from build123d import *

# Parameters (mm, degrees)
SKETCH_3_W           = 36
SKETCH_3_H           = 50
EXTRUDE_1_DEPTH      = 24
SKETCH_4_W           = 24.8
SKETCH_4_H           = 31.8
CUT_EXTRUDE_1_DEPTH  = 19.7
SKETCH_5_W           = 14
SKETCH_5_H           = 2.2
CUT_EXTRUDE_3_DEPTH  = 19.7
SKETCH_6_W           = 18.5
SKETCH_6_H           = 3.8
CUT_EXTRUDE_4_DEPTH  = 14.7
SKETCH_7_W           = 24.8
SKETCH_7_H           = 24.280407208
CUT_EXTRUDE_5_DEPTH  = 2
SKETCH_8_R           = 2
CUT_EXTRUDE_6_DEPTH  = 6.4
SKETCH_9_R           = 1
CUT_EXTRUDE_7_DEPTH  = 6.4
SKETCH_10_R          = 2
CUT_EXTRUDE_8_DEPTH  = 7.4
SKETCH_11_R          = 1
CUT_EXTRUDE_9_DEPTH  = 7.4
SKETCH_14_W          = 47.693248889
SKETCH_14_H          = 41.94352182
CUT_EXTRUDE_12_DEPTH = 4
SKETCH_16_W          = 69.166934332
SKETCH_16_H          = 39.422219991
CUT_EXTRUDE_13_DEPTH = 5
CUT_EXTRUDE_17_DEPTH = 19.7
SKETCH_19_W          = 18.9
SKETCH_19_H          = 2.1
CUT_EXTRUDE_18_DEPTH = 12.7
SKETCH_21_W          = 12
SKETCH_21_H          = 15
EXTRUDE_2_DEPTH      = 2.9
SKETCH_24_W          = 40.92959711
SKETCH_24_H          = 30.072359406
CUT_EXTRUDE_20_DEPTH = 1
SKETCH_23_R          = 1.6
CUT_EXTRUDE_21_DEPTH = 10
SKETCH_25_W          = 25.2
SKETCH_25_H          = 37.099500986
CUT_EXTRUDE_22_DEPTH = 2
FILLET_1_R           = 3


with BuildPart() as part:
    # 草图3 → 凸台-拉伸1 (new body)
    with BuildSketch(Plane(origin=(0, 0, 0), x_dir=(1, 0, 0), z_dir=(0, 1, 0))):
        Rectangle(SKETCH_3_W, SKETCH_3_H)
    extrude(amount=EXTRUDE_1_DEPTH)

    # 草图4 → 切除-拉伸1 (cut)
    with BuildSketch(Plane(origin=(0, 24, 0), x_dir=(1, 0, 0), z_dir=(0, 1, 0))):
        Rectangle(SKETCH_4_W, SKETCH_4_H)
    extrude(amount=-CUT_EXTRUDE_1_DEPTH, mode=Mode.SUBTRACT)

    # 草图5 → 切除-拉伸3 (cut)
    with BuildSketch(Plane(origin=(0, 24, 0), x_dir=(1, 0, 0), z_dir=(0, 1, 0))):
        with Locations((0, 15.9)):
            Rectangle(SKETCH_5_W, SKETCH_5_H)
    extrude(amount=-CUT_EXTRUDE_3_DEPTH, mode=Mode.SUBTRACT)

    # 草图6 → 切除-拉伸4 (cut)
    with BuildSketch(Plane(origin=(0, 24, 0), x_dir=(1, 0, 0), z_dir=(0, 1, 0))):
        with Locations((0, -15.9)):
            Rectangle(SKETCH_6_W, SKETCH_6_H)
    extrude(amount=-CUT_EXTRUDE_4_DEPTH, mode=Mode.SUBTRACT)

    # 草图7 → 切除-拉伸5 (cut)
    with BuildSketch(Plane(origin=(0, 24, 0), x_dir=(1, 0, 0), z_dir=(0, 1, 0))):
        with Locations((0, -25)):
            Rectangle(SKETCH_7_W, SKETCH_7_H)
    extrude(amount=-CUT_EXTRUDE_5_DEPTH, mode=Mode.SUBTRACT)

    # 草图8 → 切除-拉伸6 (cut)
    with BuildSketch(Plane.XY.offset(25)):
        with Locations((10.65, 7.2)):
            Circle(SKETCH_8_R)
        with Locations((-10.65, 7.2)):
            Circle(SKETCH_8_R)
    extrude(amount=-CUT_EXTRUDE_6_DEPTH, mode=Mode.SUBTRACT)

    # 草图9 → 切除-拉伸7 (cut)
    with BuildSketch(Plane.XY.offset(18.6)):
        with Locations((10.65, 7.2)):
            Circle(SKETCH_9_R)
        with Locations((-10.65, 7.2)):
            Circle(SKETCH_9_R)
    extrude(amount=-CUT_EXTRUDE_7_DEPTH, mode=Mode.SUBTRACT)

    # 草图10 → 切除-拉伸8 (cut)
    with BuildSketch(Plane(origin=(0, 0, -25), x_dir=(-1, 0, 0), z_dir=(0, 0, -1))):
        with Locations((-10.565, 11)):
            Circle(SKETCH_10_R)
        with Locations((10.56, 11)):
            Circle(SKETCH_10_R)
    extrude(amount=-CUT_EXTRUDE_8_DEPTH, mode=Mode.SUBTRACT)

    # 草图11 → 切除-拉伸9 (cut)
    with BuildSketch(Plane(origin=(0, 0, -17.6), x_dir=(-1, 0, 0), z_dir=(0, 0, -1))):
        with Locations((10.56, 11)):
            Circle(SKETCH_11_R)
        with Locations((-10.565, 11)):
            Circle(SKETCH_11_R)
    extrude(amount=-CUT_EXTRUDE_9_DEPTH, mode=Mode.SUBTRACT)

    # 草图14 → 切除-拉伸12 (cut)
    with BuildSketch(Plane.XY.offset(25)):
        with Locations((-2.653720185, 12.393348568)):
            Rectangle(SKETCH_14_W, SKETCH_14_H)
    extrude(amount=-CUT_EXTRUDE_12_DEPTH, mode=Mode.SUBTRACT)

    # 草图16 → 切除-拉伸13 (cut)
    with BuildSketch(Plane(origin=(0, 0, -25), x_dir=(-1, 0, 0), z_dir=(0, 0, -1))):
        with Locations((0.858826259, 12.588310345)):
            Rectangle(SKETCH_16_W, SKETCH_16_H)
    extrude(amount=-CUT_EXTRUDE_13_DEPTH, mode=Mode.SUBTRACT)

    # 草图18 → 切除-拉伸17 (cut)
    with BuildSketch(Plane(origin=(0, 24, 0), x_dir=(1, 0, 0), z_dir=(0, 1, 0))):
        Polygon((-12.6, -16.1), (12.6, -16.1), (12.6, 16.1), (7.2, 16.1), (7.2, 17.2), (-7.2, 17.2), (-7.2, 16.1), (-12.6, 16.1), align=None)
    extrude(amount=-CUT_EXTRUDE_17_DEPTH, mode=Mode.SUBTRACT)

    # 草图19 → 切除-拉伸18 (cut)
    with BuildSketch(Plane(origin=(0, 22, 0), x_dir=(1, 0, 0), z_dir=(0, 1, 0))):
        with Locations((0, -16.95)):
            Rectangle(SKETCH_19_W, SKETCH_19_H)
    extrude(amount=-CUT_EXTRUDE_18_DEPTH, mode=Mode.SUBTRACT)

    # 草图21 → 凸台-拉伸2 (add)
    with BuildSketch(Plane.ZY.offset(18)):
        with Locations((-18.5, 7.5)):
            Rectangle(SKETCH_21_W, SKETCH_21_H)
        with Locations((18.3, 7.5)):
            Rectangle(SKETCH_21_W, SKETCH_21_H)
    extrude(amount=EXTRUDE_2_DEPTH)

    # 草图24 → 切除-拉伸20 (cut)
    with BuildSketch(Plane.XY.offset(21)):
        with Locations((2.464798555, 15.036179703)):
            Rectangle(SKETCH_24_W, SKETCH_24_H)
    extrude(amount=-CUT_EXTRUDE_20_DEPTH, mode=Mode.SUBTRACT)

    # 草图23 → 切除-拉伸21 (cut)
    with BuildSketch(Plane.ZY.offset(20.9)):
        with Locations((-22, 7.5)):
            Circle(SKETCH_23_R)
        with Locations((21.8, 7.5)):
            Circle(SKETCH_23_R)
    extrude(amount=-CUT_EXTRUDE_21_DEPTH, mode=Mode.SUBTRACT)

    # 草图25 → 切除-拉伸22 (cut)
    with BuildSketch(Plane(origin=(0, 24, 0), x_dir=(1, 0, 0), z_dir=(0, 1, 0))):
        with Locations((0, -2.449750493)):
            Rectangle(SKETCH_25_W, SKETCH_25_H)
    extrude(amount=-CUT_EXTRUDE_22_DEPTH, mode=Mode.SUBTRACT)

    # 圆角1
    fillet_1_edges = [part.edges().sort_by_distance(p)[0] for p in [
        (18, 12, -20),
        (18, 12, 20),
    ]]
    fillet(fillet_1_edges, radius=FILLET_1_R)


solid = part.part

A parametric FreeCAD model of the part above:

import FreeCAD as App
import Part
import Sketcher
from FreeCAD import Vector
Q = App.Units.Quantity


def edges_at(feature, points):
    """Names of the edges that pass closest to the given points."""
    edges = feature.Shape.Edges
    near = lambda p: min(range(len(edges)), key=lambda i: edges[i].distToShape(Part.Vertex(*p))[0])
    return sorted({f"Edge{near(p) + 1}" for p in points})


def add_polygon(sketch, points):
    """Adds a closed chain of lines whose ends are joined by coincident constraints."""
    first, n = sketch.GeometryCount, len(points)
    for a, b in zip(points, points[1:] + points[:1]):
        sketch.addGeometry(Part.LineSegment(App.Vector(*a, 0), App.Vector(*b, 0)), False)
    for i in range(n):
        sketch.addConstraint(Sketcher.Constraint("Coincident", first + i, 2, first + (i + 1) % n, 1))

doc = App.newDocument("Part")
body = doc.addObject("PartDesign::Body", "Body")

sketch1 = doc.addObject("Sketcher::SketchObject", "Sketch")
body.addObject(sketch1)
sketch1.AttachmentSupport = (doc.XZ_Plane, [""])
sketch1.MapMode = "FlatFace"
add_polygon(sketch1, [(-18, -25), (-18, 25), (18, 25), (18, -25)])
sketch1.addConstraint([
    Sketcher.Constraint("Vertical", 0),
    Sketcher.Constraint("Horizontal", 1),
    Sketcher.Constraint("Vertical", 2),
    Sketcher.Constraint("Horizontal", 3),
    Sketcher.Constraint("Symmetric", 0, 2, 2, 2, -1, 1),
    Sketcher.Constraint("DistanceX", 1, 1, 1, 2, Q("36 mm")),
    Sketcher.Constraint("DistanceY", 0, 1, 0, 2, Q("50 mm")),
])
pad1 = doc.addObject("PartDesign::Pad", "Pad")
body.addObject(pad1)
pad1.Profile = sketch1
pad1.Length = 24
pad1.Reversed = True

sketch2 = doc.addObject("Sketcher::SketchObject", "Sketch001")
body.addObject(sketch2)
sketch2.AttachmentSupport = (doc.XZ_Plane, [""])
sketch2.MapMode = "FlatFace"
sketch2.AttachmentOffset = App.Placement(Vector(0, 0, -24), App.Rotation())
add_polygon(sketch2, [(-12.4, -15.9), (-12.4, 15.9), (12.4, 15.9), (12.4, -15.9)])
sketch2.addConstraint([
    Sketcher.Constraint("Vertical", 0),
    Sketcher.Constraint("Horizontal", 1),
    Sketcher.Constraint("Vertical", 2),
    Sketcher.Constraint("Horizontal", 3),
    Sketcher.Constraint("Symmetric", 0, 2, 2, 2, -1, 1),
    Sketcher.Constraint("DistanceX", 1, 1, 1, 2, Q("24.8 mm")),
    Sketcher.Constraint("DistanceY", 0, 1, 0, 2, Q("31.8 mm")),
])
pocket1 = doc.addObject("PartDesign::Pocket", "Pocket")
body.addObject(pocket1)
pocket1.Profile = sketch2
pocket1.Length = 19.7
pocket1.Reversed = True

sketch3 = doc.addObject("Sketcher::SketchObject", "Sketch002")
body.addObject(sketch3)
sketch3.AttachmentSupport = (doc.XZ_Plane, [""])
sketch3.MapMode = "FlatFace"
sketch3.AttachmentOffset = App.Placement(Vector(0, 0, -24), App.Rotation())
add_polygon(sketch3, [(-7, -17), (-7, -14.8), (7, -14.8), (7, -17)])
sketch3.addConstraint([
    Sketcher.Constraint("Vertical", 0),
    Sketcher.Constraint("Horizontal", 1),
    Sketcher.Constraint("Vertical", 2),
    Sketcher.Constraint("Horizontal", 3),
    Sketcher.Constraint("DistanceX", 1, 1, 1, 2, Q("14 mm")),
    Sketcher.Constraint("DistanceY", 0, 1, 0, 2, Q("2.2 mm")),
    Sketcher.Constraint("DistanceX", 0, 2, -1, 1, Q("7 mm")),
    Sketcher.Constraint("DistanceY", 2, 2, -1, 1, Q("17 mm")),
])
pocket2 = doc.addObject("PartDesign::Pocket", "Pocket001")
body.addObject(pocket2)
pocket2.Profile = sketch3
pocket2.Length = 19.7
pocket2.Reversed = True

sketch4 = doc.addObject("Sketcher::SketchObject", "Sketch003")
body.addObject(sketch4)
sketch4.AttachmentSupport = (doc.XZ_Plane, [""])
sketch4.MapMode = "FlatFace"
sketch4.AttachmentOffset = App.Placement(Vector(0, 0, -24), App.Rotation())
add_polygon(sketch4, [(-9.25, 14), (-9.25, 17.8), (9.25, 17.8), (9.25, 14)])
sketch4.addConstraint([
    Sketcher.Constraint("Vertical", 0),
    Sketcher.Constraint("Horizontal", 1),
    Sketcher.Constraint("Vertical", 2),
    Sketcher.Constraint("Horizontal", 3),
    Sketcher.Constraint("DistanceX", 1, 1, 1, 2, Q("18.5 mm")),
    Sketcher.Constraint("DistanceY", 0, 1, 0, 2, Q("3.8 mm")),
    Sketcher.Constraint("DistanceY", -1, 1, 2, 2, Q("14 mm")),
    Sketcher.Constraint("DistanceX", 0, 2, -1, 1, Q("9.25 mm")),
])
pocket3 = doc.addObject("PartDesign::Pocket", "Pocket002")
body.addObject(pocket3)
pocket3.Profile = sketch4
pocket3.Length = 14.7
pocket3.Reversed = True

sketch5 = doc.addObject("Sketcher::SketchObject", "Sketch004")
body.addObject(sketch5)
sketch5.AttachmentSupport = (doc.XZ_Plane, [""])
sketch5.MapMode = "FlatFace"
sketch5.AttachmentOffset = App.Placement(Vector(0, 0, -24), App.Rotation())
add_polygon(sketch5, [(-12.4, 12.859796), (-12.4, 37.140204), (12.4, 37.140204), (12.4, 12.859796)])
sketch5.addConstraint([
    Sketcher.Constraint("Vertical", 0),
    Sketcher.Constraint("Horizontal", 1),
    Sketcher.Constraint("Vertical", 2),
    Sketcher.Constraint("Horizontal", 3),
    Sketcher.Constraint("DistanceX", 1, 1, 1, 2, Q("24.8 mm")),
    Sketcher.Constraint("DistanceX", 0, 2, -1, 1, Q("12.4 mm")),
    Sketcher.Constraint("DistanceY", 0, 1, 0, 2, Q("24.280407 mm")),
    Sketcher.Constraint("DistanceY", -1, 1, 0, 2, Q("37.140204 mm")),
])
pocket4 = doc.addObject("PartDesign::Pocket", "Pocket003")
body.addObject(pocket4)
pocket4.Profile = sketch5
pocket4.Length = 2
pocket4.Reversed = True

sketch6 = doc.addObject("Sketcher::SketchObject", "Sketch005")
body.addObject(sketch6)
sketch6.AttachmentSupport = (doc.XY_Plane, [""])
sketch6.MapMode = "FlatFace"
sketch6.AttachmentOffset = App.Placement(Vector(0, 0, 25), App.Rotation())
sketch6.addGeometry([
    Part.Circle(Vector(10.65, 7.2, 0), Vector(0, 0, 1), 2),
    Part.Circle(Vector(-10.65, 7.2, 0), Vector(0, 0, 1), 2),
], False)
sketch6.addConstraint([
    Sketcher.Constraint("Equal", 0, 1),
    Sketcher.Constraint("Symmetric", 0, 3, 1, 3, -2),
    Sketcher.Constraint("Diameter", 0, Q("4 mm")),
    Sketcher.Constraint("DistanceY", -1, 1, 0, 3, Q("7.2 mm")),
    Sketcher.Constraint("DistanceX", 1, 3, 0, 3, Q("21.3 mm")),
])
pocket5 = doc.addObject("PartDesign::Pocket", "Pocket004")
body.addObject(pocket5)
pocket5.Profile = sketch6
pocket5.Length = 6.4

sketch7 = doc.addObject("Sketcher::SketchObject", "Sketch006")
body.addObject(sketch7)
sketch7.AttachmentSupport = (doc.XY_Plane, [""])
sketch7.MapMode = "FlatFace"
sketch7.AttachmentOffset = App.Placement(Vector(0, 0, 18.6), App.Rotation())
sketch7.addGeometry([
    Part.Circle(Vector(10.65, 7.2, 0), Vector(0, 0, 1), 1),
    Part.Circle(Vector(-10.65, 7.2, 0), Vector(0, 0, 1), 1),
], False)
sketch7.addConstraint([
    Sketcher.Constraint("Equal", 0, 1),
    Sketcher.Constraint("Symmetric", 0, 3, 1, 3, -2),
    Sketcher.Constraint("Diameter", 0, Q("2 mm")),
    Sketcher.Constraint("DistanceY", -1, 1, 0, 3, Q("7.2 mm")),
    Sketcher.Constraint("DistanceX", 1, 3, 0, 3, Q("21.3 mm")),
])
pocket6 = doc.addObject("PartDesign::Pocket", "Pocket005")
body.addObject(pocket6)
pocket6.Profile = sketch7
pocket6.Length = 6.4

sketch8 = doc.addObject("Sketcher::SketchObject", "Sketch007")
body.addObject(sketch8)
sketch8.AttachmentSupport = (doc.XY_Plane, [""])
sketch8.MapMode = "FlatFace"
sketch8.AttachmentOffset = App.Placement(Vector(0, 0, -25), App.Rotation())
sketch8.addGeometry([
    Part.Circle(Vector(10.565, 11, 0), Vector(0, 0, 1), 2),
    Part.Circle(Vector(-10.56, 11, 0), Vector(0, 0, 1), 2),
], False)
sketch8.addConstraint([
    Sketcher.Constraint("Equal", 0, 1),
    Sketcher.Constraint("Horizontal", 0, 3, 1, 3),
    Sketcher.Constraint("Diameter", 0, Q("4 mm")),
    Sketcher.Constraint("DistanceY", -1, 1, 0, 3, Q("11 mm")),
    Sketcher.Constraint("DistanceX", 1, 3, -1, 1, Q("10.56 mm")),
    Sketcher.Constraint("DistanceX", -1, 1, 0, 3, Q("10.565 mm")),
])
pocket7 = doc.addObject("PartDesign::Pocket", "Pocket006")
body.addObject(pocket7)
pocket7.Profile = sketch8
pocket7.Length = 7.4
pocket7.Reversed = True

sketch9 = doc.addObject("Sketcher::SketchObject", "Sketch008")
body.addObject(sketch9)
sketch9.AttachmentSupport = (doc.XY_Plane, [""])
sketch9.MapMode = "FlatFace"
sketch9.AttachmentOffset = App.Placement(Vector(0, 0, -17.6), App.Rotation())
sketch9.addGeometry([
    Part.Circle(Vector(-10.56, 11, 0), Vector(0, 0, 1), 1),
    Part.Circle(Vector(10.565, 11, 0), Vector(0, 0, 1), 1),
], False)
sketch9.addConstraint([
    Sketcher.Constraint("Equal", 0, 1),
    Sketcher.Constraint("Horizontal", 0, 3, 1, 3),
    Sketcher.Constraint("Diameter", 0, Q("2 mm")),
    Sketcher.Constraint("DistanceY", -1, 1, 0, 3, Q("11 mm")),
    Sketcher.Constraint("DistanceX", 0, 3, -1, 1, Q("10.56 mm")),
    Sketcher.Constraint("DistanceX", -1, 1, 1, 3, Q("10.565 mm")),
])
pocket8 = doc.addObject("PartDesign::Pocket", "Pocket007")
body.addObject(pocket8)
pocket8.Profile = sketch9
pocket8.Length = 7.4
pocket8.Reversed = True

sketch10 = doc.addObject("Sketcher::SketchObject", "Sketch009")
body.addObject(sketch10)
sketch10.AttachmentSupport = (doc.XY_Plane, [""])
sketch10.MapMode = "FlatFace"
sketch10.AttachmentOffset = App.Placement(Vector(0, 0, 25), App.Rotation())
add_polygon(sketch10, [(-26.500345, 33.365109), (-26.500345, -8.578412), (21.192904, -8.578412), (21.192904, 33.365109)])
sketch10.addConstraint([
    Sketcher.Constraint("Vertical", 0),
    Sketcher.Constraint("Horizontal", 1),
    Sketcher.Constraint("Vertical", 2),
    Sketcher.Constraint("Horizontal", 3),
    Sketcher.Constraint("DistanceX", 1, 1, 1, 2, Q("47.693249 mm")),
    Sketcher.Constraint("DistanceY", 0, 2, 0, 1, Q("41.943522 mm")),
    Sketcher.Constraint("DistanceY", -1, 1, 2, 2, Q("33.365109 mm")),
    Sketcher.Constraint("DistanceX", 0, 2, -1, 1, Q("26.500345 mm")),
])
pocket9 = doc.addObject("PartDesign::Pocket", "Pocket008")
body.addObject(pocket9)
pocket9.Profile = sketch10
pocket9.Length = 4

sketch11 = doc.addObject("Sketcher::SketchObject", "Sketch010")
body.addObject(sketch11)
sketch11.AttachmentSupport = (doc.XY_Plane, [""])
sketch11.MapMode = "FlatFace"
sketch11.AttachmentOffset = App.Placement(Vector(0, 0, -25), App.Rotation())
add_polygon(sketch11, [(33.724641, 32.29942), (33.724641, -7.1228), (-35.442293, -7.1228), (-35.442293, 32.29942)])
sketch11.addConstraint([
    Sketcher.Constraint("Vertical", 0),
    Sketcher.Constraint("Horizontal", 1),
    Sketcher.Constraint("Vertical", 2),
    Sketcher.Constraint("Horizontal", 3),
    Sketcher.Constraint("DistanceY", 0, 2, 0, 1, Q("39.42222 mm")),
    Sketcher.Constraint("DistanceY", 0, 2, -1, 1, Q("7.1228 mm")),
    Sketcher.Constraint("DistanceX", 1, 2, 1, 1, Q("69.166934 mm")),
    Sketcher.Constraint("DistanceX", -1, 1, 0, 2, Q("33.724641 mm")),
])
pocket10 = doc.addObject("PartDesign::Pocket", "Pocket009")
body.addObject(pocket10)
pocket10.Profile = sketch11
pocket10.Length = 5
pocket10.Reversed = True

sketch12 = doc.addObject("Sketcher::SketchObject", "Sketch011")
body.addObject(sketch12)
sketch12.AttachmentSupport = (doc.XZ_Plane, [""])
sketch12.MapMode = "FlatFace"
sketch12.AttachmentOffset = App.Placement(Vector(0, 0, -24), App.Rotation())
add_polygon(sketch12, [(-12.6, 16.1), (12.6, 16.1), (12.6, -16.1), (7.2, -16.1), (7.2, -17.2), (-7.2, -17.2), (-7.2, -16.1), (-12.6, -16.1)])
sketch12.addConstraint([
    Sketcher.Constraint("Horizontal", 0),
    Sketcher.Constraint("Vertical", 1),
    Sketcher.Constraint("Horizontal", 2),
    Sketcher.Constraint("Vertical", 3),
    Sketcher.Constraint("Horizontal", 4),
    Sketcher.Constraint("Vertical", 5),
    Sketcher.Constraint("Horizontal", 6),
    Sketcher.Constraint("Vertical", 7),
    Sketcher.Constraint("Symmetric", 0, 2, 6, 2, -1, 1),
    Sketcher.Constraint("Symmetric", 2, 2, 5, 2, -2),
    Sketcher.Constraint("DistanceX", 0, 1, 0, 2, Q("25.2 mm")),
    Sketcher.Constraint("DistanceX", 2, 2, 2, 1, Q("5.4 mm")),
    Sketcher.Constraint("DistanceY", 1, 2, 1, 1, Q("32.2 mm")),
    Sketcher.Constraint("DistanceY", 3, 2, 3, 1, Q("1.1 mm")),
])
pocket11 = doc.addObject("PartDesign::Pocket", "Pocket010")
body.addObject(pocket11)
pocket11.Profile = sketch12
pocket11.Length = 19.7
pocket11.Reversed = True

sketch13 = doc.addObject("Sketcher::SketchObject", "Sketch012")
body.addObject(sketch13)
sketch13.AttachmentSupport = (doc.XZ_Plane, [""])
sketch13.MapMode = "FlatFace"
sketch13.AttachmentOffset = App.Placement(Vector(0, 0, -22), App.Rotation())
add_polygon(sketch13, [(-9.45, 15.9), (-9.45, 18), (9.45, 18), (9.45, 15.9)])
sketch13.addConstraint([
    Sketcher.Constraint("Vertical", 0),
    Sketcher.Constraint("Horizontal", 1),
    Sketcher.Constraint("Vertical", 2),
    Sketcher.Constraint("Horizontal", 3),
    Sketcher.Constraint("DistanceX", 1, 1, 1, 2, Q("18.9 mm")),
    Sketcher.Constraint("DistanceY", 0, 1, 0, 2, Q("2.1 mm")),
    Sketcher.Constraint("DistanceY", -1, 1, 0, 2, Q("18 mm")),
    Sketcher.Constraint("DistanceX", 0, 2, -1, 1, Q("9.45 mm")),
])
pocket12 = doc.addObject("PartDesign::Pocket", "Pocket011")
body.addObject(pocket12)
pocket12.Profile = sketch13
pocket12.Length = 12.7
pocket12.Reversed = True

sketch14 = doc.addObject("Sketcher::SketchObject", "Sketch013")
body.addObject(sketch14)
sketch14.AttachmentSupport = (doc.YZ_Plane, [""])
sketch14.MapMode = "FlatFace"
sketch14.AttachmentOffset = App.Placement(Vector(0, 0, -18), App.Rotation())
add_polygon(sketch14, [(15, -24.5), (0, -24.5), (0, -12.5), (15, -12.5)])
add_polygon(sketch14, [(15, 12.3), (0, 12.3), (0, 24.3), (15, 24.3)])
sketch14.addConstraint([
    Sketcher.Constraint("Horizontal", 0),
    Sketcher.Constraint("Vertical", 1),
    Sketcher.Constraint("Horizontal", 2),
    Sketcher.Constraint("Vertical", 3),
    Sketcher.Constraint("Horizontal", 4),
    Sketcher.Constraint("Vertical", 5),
    Sketcher.Constraint("Horizontal", 6),
    Sketcher.Constraint("Vertical", 7),
    Sketcher.Constraint("PointOnObject", 0, 2, -2),
    Sketcher.Constraint("PointOnObject", 4, 2, -2),
    Sketcher.Constraint("Vertical", 3, 2, 6, 2),
    Sketcher.Constraint("Equal", 3, 5),
    Sketcher.Constraint("DistanceX", 0, 2, 0, 1, Q("15 mm")),
    Sketcher.Constraint("DistanceY", 1, 1, 1, 2, Q("12 mm")),
    Sketcher.Constraint("DistanceY", 0, 2, -1, 1, Q("24.5 mm")),
    Sketcher.Constraint("DistanceY", -1, 1, 4, 2, Q("12.3 mm")),
])
pad2 = doc.addObject("PartDesign::Pad", "Pad001")
body.addObject(pad2)
pad2.Profile = sketch14
pad2.Length = 2.9
pad2.Reversed = True

sketch15 = doc.addObject("Sketcher::SketchObject", "Sketch014")
body.addObject(sketch15)
sketch15.AttachmentSupport = (doc.XY_Plane, [""])
sketch15.MapMode = "FlatFace"
sketch15.AttachmentOffset = App.Placement(Vector(0, 0, 21), App.Rotation())
add_polygon(sketch15, [(-18, 30.072359), (-18, 0), (22.929597, 0), (22.929597, 30.072359)])
sketch15.addConstraint([
    Sketcher.Constraint("Vertical", 0),
    Sketcher.Constraint("Horizontal", 1),
    Sketcher.Constraint("Vertical", 2),
    Sketcher.Constraint("Horizontal", 3),
    Sketcher.Constraint("PointOnObject", 0, 2, -1),
    Sketcher.Constraint("DistanceX", 0, 2, -1, 1, Q("18 mm")),
    Sketcher.Constraint("DistanceY", 0, 2, 0, 1, Q("30.072359 mm")),
    Sketcher.Constraint("DistanceX", 1, 1, 1, 2, Q("40.929597 mm")),
])
pocket13 = doc.addObject("PartDesign::Pocket", "Pocket012")
body.addObject(pocket13)
pocket13.Profile = sketch15
pocket13.Length = 1

sketch16 = doc.addObject("Sketcher::SketchObject", "Sketch015")
body.addObject(sketch16)
sketch16.AttachmentSupport = (doc.YZ_Plane, [""])
sketch16.MapMode = "FlatFace"
sketch16.AttachmentOffset = App.Placement(Vector(0, 0, -20.9), App.Rotation())
sketch16.addGeometry([
    Part.Circle(Vector(7.5, -22, 0), Vector(0, 0, 1), 1.6),
    Part.Circle(Vector(7.5, 21.8, 0), Vector(0, 0, 1), 1.6),
], False)
sketch16.addConstraint([
    Sketcher.Constraint("Equal", 0, 1),
    Sketcher.Constraint("Vertical", 0, 3, 1, 3),
    Sketcher.Constraint("Diameter", 0, Q("3.2 mm")),
    Sketcher.Constraint("DistanceY", 0, 3, -1, 1, Q("22 mm")),
    Sketcher.Constraint("DistanceX", -1, 1, 0, 3, Q("7.5 mm")),
    Sketcher.Constraint("DistanceY", -1, 1, 1, 3, Q("21.8 mm")),
])
pocket14 = doc.addObject("PartDesign::Pocket", "Pocket013")
body.addObject(pocket14)
pocket14.Profile = sketch16
pocket14.Length = 10
pocket14.Reversed = True

sketch17 = doc.addObject("Sketcher::SketchObject", "Sketch016")
body.addObject(sketch17)
sketch17.AttachmentSupport = (doc.XZ_Plane, [""])
sketch17.MapMode = "FlatFace"
sketch17.AttachmentOffset = App.Placement(Vector(0, 0, -24), App.Rotation())
add_polygon(sketch17, [(-12.6, -16.1), (-12.6, 20.999501), (12.6, 20.999501), (12.6, -16.1)])
sketch17.addConstraint([
    Sketcher.Constraint("Vertical", 0),
    Sketcher.Constraint("Horizontal", 1),
    Sketcher.Constraint("Vertical", 2),
    Sketcher.Constraint("Horizontal", 3),
    Sketcher.Constraint("DistanceX", 1, 1, 1, 2, Q("25.2 mm")),
    Sketcher.Constraint("DistanceX", 0, 2, -1, 1, Q("12.6 mm")),
    Sketcher.Constraint("DistanceY", 2, 2, -1, 1, Q("16.1 mm")),
    Sketcher.Constraint("DistanceY", 0, 1, 0, 2, Q("37.099501 mm")),
])
pocket15 = doc.addObject("PartDesign::Pocket", "Pocket014")
body.addObject(pocket15)
pocket15.Profile = sketch17
pocket15.Length = 2
pocket15.Reversed = True
doc.recompute()

fillet = doc.addObject("PartDesign::Fillet", "Fillet")
body.addObject(fillet)
fillet.Base = (pocket15, edges_at(pocket15, [(18, 12, -20), (18, 12, 20)]))
fillet.Radius = 3

doc.recompute()
